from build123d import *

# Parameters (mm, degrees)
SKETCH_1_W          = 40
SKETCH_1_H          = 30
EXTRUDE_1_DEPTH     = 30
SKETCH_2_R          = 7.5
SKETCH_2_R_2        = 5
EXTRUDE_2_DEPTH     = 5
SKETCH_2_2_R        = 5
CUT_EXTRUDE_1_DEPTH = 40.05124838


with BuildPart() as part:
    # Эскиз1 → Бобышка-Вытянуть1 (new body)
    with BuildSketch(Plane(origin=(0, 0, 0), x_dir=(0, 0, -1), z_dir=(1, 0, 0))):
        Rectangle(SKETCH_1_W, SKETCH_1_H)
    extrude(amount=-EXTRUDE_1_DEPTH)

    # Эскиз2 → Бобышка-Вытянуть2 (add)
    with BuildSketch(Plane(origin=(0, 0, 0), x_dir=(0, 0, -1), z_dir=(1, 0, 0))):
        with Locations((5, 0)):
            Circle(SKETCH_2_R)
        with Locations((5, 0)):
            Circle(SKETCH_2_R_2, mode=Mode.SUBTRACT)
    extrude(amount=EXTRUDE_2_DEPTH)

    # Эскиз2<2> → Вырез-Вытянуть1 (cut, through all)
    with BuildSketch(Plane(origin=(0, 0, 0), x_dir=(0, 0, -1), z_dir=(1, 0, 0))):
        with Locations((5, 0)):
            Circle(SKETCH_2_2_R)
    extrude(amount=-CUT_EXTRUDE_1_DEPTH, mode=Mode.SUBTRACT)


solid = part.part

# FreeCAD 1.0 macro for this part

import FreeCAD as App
import Part
import Sketcher
from FreeCAD import Vector
Q = App.Units.Quantity

doc = App.newDocument("Part")
body = doc.addObject("PartDesign::Body", "Body")

# Sketch on YZ plane
sketch1 = body.newObject("Sketcher::SketchObject", "Sketch")
sketch1.AttachmentSupport = (doc.getObject("YZ_Plane"), [""])
sketch1.MapMode = "FlatFace"
sketch1.addGeometry([
    Part.LineSegment(Vector(15, 20, 0), Vector(-15, 20, 0)),
    Part.LineSegment(Vector(-15, 20, 0), Vector(-15, -20, 0)),
    Part.LineSegment(Vector(-15, -20, 0), Vector(15, -20, 0)),
    Part.LineSegment(Vector(15, -20, 0), Vector(15, 20, 0)),
], False)
sketch1.addConstraint([
    Sketcher.Constraint("Coincident", 0, 2, 1, 1),
    Sketcher.Constraint("Coincident", 1, 2, 2, 1),
    Sketcher.Constraint("Coincident", 2, 2, 3, 1),
    Sketcher.Constraint("Coincident", 3, 2, 0, 1),
    Sketcher.Constraint("Horizontal", 0),
    Sketcher.Constraint("Vertical", 1),
    Sketcher.Constraint("Horizontal", 2),
    Sketcher.Constraint("Vertical", 3),
    Sketcher.Constraint("Symmetric", 0, 2, 2, 2, -1, 1),
    Sketcher.Constraint("DistanceX", 0, 2, 0, 1, Q("30 mm")),
    Sketcher.Constraint("DistanceY", 1, 2, 1, 1, Q("40 mm")),
])
pad1 = body.newObject("PartDesign::Pad", "Pad")
pad1.Profile = sketch1
pad1.Length = 30
pad1.Reversed = True

# Sketch on YZ plane
sketch2 = body.newObject("Sketcher::SketchObject", "Sketch001")
sketch2.AttachmentSupport = (doc.getObject("YZ_Plane"), [""])
sketch2.MapMode = "FlatFace"
sketch2.addGeometry([
    Part.Circle(Vector(0, -5, 0), Vector(0, 0, 1), 8),
    Part.Circle(Vector(0, -5, 0), Vector(0, 0, 1), 5),
], False)
sketch2.addConstraint([
    Sketcher.Constraint("Coincident", 1, 3, 0, 3),
    Sketcher.Constraint("PointOnObject", 0, 3, -2),
    Sketcher.Constraint("Diameter", 0, Q("15 mm")),
    Sketcher.Constraint("Diameter", 1, Q("10 mm")),
    Sketcher.Constraint("DistanceY", 0, 3, -1, 1, Q("5 mm")),
])
pad2 = body.newObject("PartDesign::Pad", "Pad001")
pad2.Profile = sketch2
pad2.Length = 5

# Sketch on YZ plane
sketch3 = body.newObject("Sketcher::SketchObject", "Sketch002")
sketch3.AttachmentSupport = (doc.getObject("YZ_Plane"), [""])
sketch3.MapMode = "FlatFace"
sketch3.addGeometry(Part.Circle(Vector(0, -5, 0), Vector(0, 0, 1), 5), False)
sketch3.addConstraint([
    Sketcher.Constraint("PointOnObject", 0, 3, -2),
    Sketcher.Constraint("Diameter", 0, Q("10 mm")),
    Sketcher.Constraint("DistanceY", 0, 3, -1, 1, Q("5 mm")),
])
pocket1 = body.newObject("PartDesign::Pocket", "Pocket")
pocket1.Profile = sketch3
pocket1.Type = "ThroughAll"

doc.recompute()
